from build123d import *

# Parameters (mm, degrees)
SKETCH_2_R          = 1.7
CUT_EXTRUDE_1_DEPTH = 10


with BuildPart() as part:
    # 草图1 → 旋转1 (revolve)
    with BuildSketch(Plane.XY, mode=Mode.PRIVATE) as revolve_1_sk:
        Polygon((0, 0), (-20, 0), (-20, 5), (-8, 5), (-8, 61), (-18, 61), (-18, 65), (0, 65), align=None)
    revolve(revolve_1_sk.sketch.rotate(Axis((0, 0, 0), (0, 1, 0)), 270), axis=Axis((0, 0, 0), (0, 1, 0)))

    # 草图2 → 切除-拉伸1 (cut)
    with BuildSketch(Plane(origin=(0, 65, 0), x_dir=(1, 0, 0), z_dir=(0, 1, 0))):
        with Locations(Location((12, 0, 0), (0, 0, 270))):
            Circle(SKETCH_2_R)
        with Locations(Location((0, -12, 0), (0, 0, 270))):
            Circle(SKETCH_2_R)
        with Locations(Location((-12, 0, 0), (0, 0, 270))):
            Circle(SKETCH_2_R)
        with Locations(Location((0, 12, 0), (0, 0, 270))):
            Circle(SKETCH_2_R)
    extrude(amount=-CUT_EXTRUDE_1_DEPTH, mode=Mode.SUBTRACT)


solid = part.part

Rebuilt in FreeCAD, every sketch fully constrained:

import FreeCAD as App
import Part
import Sketcher
from FreeCAD import Vector
Q = App.Units.Quantity


def add_polygon(sketch, points):
    """Adds a closed chain of lines whose ends are joined by coincident constraints."""
    first, n = sketch.GeometryCount, len(points)
    for a, b in zip(points, points[1:] + points[:1]):
        sketch.addGeometry(Part.LineSegment(App.Vector(*a, 0), App.Vector(*b, 0)), False)
    for i in range(n):
        sketch.addConstraint(Sketcher.Constraint("Coincident", first + i, 2, first + (i + 1) % n, 1))

doc = App.newDocument("Part")
body = doc.addObject("PartDesign::Body", "Body")

# Sketch on XY plane
sketch1 = body.newObject("Sketcher::SketchObject", "Sketch")
sketch1.AttachmentSupport = (doc.getObject("XY_Plane"), [""])
sketch1.MapMode = "FlatFace"
add_polygon(sketch1, [(-20, 0), (0, 0), (0, 65), (-18, 65), (-18, 61), (-8, 61), (-8, 5), (-20, 5)])  # lines 0-7
sketch1.addConstraint(Sketcher.Constraint("Horizontal", 0))
sketch1.addConstraint(Sketcher.Constraint("Vertical", 1))
sketch1.addConstraint(Sketcher.Constraint("Horizontal", 2))
sketch1.addConstraint(Sketcher.Constraint("Vertical", 3))
sketch1.addConstraint(Sketcher.Constraint("Horizontal", 4))
sketch1.addConstraint(Sketcher.Constraint("Vertical", 5))
sketch1.addConstraint(Sketcher.Constraint("Horizontal", 6))
sketch1.addConstraint(Sketcher.Constraint("Vertical", 7))
sketch1.addConstraint(Sketcher.Constraint("Coincident", 0, 2, -1, 1))
sketch1.addConstraint(Sketcher.Constraint("DistanceX", 0, 1, 0, 2, Q("20 mm")))
sketch1.addConstraint(Sketcher.Constraint("DistanceX", 2, 2, 2, 1, Q("18 mm")))
sketch1.addConstraint(Sketcher.Constraint("DistanceX", 4, 1, 4, 2, Q("10 mm")))
sketch1.addConstraint(Sketcher.Constraint("DistanceY", 1, 1, 1, 2, Q("65 mm")))
sketch1.addConstraint(Sketcher.Constraint("DistanceY", 3, 2, 3, 1, Q("4 mm")))
sketch1.addConstraint(Sketcher.Constraint("DistanceY", 5, 2, 5, 1, Q("56 mm")))
revolution = body.newObject("PartDesign::Revolution", "Revolution")
revolution.Profile = sketch1
revolution.ReferenceAxis = (sketch1, ["V_Axis"])
revolution.Angle = 360

# Sketch on XZ plane
sketch2 = body.newObject("Sketcher::SketchObject", "Sketch001")
sketch2.AttachmentSupport = (doc.getObject("XZ_Plane"), [""])
sketch2.MapMode = "FlatFace"
sketch2.AttachmentOffset = App.Placement(Vector(0, 0, -65), App.Rotation())
sketch2.addGeometry(Part.Circle(Vector(12, 0, 0), Vector(0, 0, 1), 1.7), False)
sketch2.addGeometry(Part.Circle(Vector(0, 12, 0), Vector(0, 0, 1), 1.7), False)
sketch2.addGeometry(Part.Circle(Vector(-12, 0, 0), Vector(0, 0, 1), 1.7), False)
sketch2.addGeometry(Part.Circle(Vector(0, -12, 0), Vector(0, 0, 1), 1.7), False)
sketch2.addConstraint(Sketcher.Constraint("Equal", 0, 1))
sketch2.addConstraint(Sketcher.Constraint("Equal", 1, 2))
sketch2.addConstraint(Sketcher.Constraint("Equal", 2, 3))
sketch2.addConstraint(Sketcher.Constraint("Symmetric", 0, 3, 2, 3, -1, 1))
sketch2.addConstraint(Sketcher.Constraint("Symmetric", 1, 3, 3, 3, -1, 1))
sketch2.addConstraint(Sketcher.Constraint("PointOnObject", 0, 3, -1))
sketch2.addConstraint(Sketcher.Constraint("PointOnObject", 1, 3, -2))
sketch2.addConstraint(Sketcher.Constraint("Diameter", 0, Q("3.4 mm")))
sketch2.addConstraint(Sketcher.Constraint("DistanceX", -1, 1, 0, 3, Q("12 mm")))
sketch2.addConstraint(Sketcher.Constraint("DistanceY", -1, 1, 1, 3, Q("12 mm")))
pocket1 = body.newObject("PartDesign::Pocket", "Pocket")
pocket1.Profile = sketch2
pocket1.Length = 10
pocket1.Reversed = True

doc.recompute()
